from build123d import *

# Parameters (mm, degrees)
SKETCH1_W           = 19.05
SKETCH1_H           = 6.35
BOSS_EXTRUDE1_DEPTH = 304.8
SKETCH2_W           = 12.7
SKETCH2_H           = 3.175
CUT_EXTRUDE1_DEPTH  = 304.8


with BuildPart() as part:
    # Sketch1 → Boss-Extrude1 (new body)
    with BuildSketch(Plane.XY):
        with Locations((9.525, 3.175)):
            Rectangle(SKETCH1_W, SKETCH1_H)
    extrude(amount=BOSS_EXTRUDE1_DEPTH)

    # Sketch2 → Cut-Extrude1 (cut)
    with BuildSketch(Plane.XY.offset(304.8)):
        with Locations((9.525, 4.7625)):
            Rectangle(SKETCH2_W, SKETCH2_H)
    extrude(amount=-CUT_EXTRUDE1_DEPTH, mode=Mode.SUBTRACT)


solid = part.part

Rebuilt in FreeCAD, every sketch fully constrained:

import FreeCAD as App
import Part
import Sketcher
from FreeCAD import Vector
Q = App.Units.Quantity

doc = App.newDocument("Part")
body = doc.addObject("PartDesign::Body", "Body")

# Sketch on XY plane
sketch1 = body.newObject("Sketcher::SketchObject", "Sketch")
sketch1.AttachmentSupport = (doc.getObject("XY_Plane"), [""])
sketch1.MapMode = "FlatFace"
sketch1.addGeometry([
    Part.LineSegment(Vector(0, 6, 0), Vector(0, 0, 0)),
    Part.LineSegment(Vector(0, 0, 0), Vector(19, 0, 0)),
    Part.LineSegment(Vector(19, 0, 0), Vector(19, 6, 0)),
    Part.LineSegment(Vector(19, 6, 0), Vector(0, 6, 0)),
], False)
sketch1.addConstraint([
    Sketcher.Constraint("Coincident", 0, 2, 1, 1),
    Sketcher.Constraint("Coincident", 1, 2, 2, 1),
    Sketcher.Constraint("Coincident", 2, 2, 3, 1),
    Sketcher.Constraint("Coincident", 3, 2, 0, 1),
    Sketcher.Constraint("Vertical", 0),
    Sketcher.Constraint("Horizontal", 1),
    Sketcher.Constraint("Vertical", 2),
    Sketcher.Constraint("Horizontal", 3),
    Sketcher.Constraint("Coincident", 0, 2, -1, 1),
    Sketcher.Constraint("DistanceX", 1, 1, 1, 2, Q("0.75 in")),
    Sketcher.Constraint("DistanceY", 0, 2, 0, 1, Q("0.25 in")),
])
pad1 = body.newObject("PartDesign::Pad", "Pad")
pad1.Profile = sketch1
pad1.Length = Q("12 in")

# Sketch on XY plane
sketch2 = body.newObject("Sketcher::SketchObject", "Sketch001")
sketch2.AttachmentSupport = (doc.getObject("XY_Plane"), [""])
sketch2.MapMode = "FlatFace"
sketch2.AttachmentOffset = App.Placement(Vector(0, 0, 12 * 25.4), App.Rotation())
sketch2.addGeometry([
    Part.LineSegment(Vector(3.2, 6.3, 0), Vector(3.2, 3.2, 0)),
    Part.LineSegment(Vector(3.2, 3.2, 0), Vector(15.9, 3.2, 0)),
    Part.LineSegment(Vector(15.9, 3.2, 0), Vector(15.9, 6.3, 0)),
    Part.LineSegment(Vector(15.9, 6.3, 0), Vector(3.2, 6.3, 0)),
], False)
sketch2.addConstraint([
    Sketcher.Constraint("Coincident", 0, 2, 1, 1),
    Sketcher.Constraint("Coincident", 1, 2, 2, 1),
    Sketcher.Constraint("Coincident", 2, 2, 3, 1),
    Sketcher.Constraint("Coincident", 3, 2, 0, 1),
    Sketcher.Constraint("Vertical", 0),
    Sketcher.Constraint("Horizontal", 1),
    Sketcher.Constraint("Vertical", 2),
    Sketcher.Constraint("Horizontal", 3),
    Sketcher.Constraint("DistanceX", 1, 1, 1, 2, Q("0.5 in")),
    Sketcher.Constraint("DistanceY", 0, 2, 0, 1, Q("0.125 in")),
    Sketcher.Constraint("DistanceY", -1, 1, 2, 2, Q("0.25 in")),
    Sketcher.Constraint("DistanceX", -1, 1, 0, 2, Q("0.125 in")),
])
pocket1 = body.newObject("PartDesign::Pocket", "Pocket")
pocket1.Profile = sketch2
pocket1.Length = Q("12 in")

doc.recompute()
